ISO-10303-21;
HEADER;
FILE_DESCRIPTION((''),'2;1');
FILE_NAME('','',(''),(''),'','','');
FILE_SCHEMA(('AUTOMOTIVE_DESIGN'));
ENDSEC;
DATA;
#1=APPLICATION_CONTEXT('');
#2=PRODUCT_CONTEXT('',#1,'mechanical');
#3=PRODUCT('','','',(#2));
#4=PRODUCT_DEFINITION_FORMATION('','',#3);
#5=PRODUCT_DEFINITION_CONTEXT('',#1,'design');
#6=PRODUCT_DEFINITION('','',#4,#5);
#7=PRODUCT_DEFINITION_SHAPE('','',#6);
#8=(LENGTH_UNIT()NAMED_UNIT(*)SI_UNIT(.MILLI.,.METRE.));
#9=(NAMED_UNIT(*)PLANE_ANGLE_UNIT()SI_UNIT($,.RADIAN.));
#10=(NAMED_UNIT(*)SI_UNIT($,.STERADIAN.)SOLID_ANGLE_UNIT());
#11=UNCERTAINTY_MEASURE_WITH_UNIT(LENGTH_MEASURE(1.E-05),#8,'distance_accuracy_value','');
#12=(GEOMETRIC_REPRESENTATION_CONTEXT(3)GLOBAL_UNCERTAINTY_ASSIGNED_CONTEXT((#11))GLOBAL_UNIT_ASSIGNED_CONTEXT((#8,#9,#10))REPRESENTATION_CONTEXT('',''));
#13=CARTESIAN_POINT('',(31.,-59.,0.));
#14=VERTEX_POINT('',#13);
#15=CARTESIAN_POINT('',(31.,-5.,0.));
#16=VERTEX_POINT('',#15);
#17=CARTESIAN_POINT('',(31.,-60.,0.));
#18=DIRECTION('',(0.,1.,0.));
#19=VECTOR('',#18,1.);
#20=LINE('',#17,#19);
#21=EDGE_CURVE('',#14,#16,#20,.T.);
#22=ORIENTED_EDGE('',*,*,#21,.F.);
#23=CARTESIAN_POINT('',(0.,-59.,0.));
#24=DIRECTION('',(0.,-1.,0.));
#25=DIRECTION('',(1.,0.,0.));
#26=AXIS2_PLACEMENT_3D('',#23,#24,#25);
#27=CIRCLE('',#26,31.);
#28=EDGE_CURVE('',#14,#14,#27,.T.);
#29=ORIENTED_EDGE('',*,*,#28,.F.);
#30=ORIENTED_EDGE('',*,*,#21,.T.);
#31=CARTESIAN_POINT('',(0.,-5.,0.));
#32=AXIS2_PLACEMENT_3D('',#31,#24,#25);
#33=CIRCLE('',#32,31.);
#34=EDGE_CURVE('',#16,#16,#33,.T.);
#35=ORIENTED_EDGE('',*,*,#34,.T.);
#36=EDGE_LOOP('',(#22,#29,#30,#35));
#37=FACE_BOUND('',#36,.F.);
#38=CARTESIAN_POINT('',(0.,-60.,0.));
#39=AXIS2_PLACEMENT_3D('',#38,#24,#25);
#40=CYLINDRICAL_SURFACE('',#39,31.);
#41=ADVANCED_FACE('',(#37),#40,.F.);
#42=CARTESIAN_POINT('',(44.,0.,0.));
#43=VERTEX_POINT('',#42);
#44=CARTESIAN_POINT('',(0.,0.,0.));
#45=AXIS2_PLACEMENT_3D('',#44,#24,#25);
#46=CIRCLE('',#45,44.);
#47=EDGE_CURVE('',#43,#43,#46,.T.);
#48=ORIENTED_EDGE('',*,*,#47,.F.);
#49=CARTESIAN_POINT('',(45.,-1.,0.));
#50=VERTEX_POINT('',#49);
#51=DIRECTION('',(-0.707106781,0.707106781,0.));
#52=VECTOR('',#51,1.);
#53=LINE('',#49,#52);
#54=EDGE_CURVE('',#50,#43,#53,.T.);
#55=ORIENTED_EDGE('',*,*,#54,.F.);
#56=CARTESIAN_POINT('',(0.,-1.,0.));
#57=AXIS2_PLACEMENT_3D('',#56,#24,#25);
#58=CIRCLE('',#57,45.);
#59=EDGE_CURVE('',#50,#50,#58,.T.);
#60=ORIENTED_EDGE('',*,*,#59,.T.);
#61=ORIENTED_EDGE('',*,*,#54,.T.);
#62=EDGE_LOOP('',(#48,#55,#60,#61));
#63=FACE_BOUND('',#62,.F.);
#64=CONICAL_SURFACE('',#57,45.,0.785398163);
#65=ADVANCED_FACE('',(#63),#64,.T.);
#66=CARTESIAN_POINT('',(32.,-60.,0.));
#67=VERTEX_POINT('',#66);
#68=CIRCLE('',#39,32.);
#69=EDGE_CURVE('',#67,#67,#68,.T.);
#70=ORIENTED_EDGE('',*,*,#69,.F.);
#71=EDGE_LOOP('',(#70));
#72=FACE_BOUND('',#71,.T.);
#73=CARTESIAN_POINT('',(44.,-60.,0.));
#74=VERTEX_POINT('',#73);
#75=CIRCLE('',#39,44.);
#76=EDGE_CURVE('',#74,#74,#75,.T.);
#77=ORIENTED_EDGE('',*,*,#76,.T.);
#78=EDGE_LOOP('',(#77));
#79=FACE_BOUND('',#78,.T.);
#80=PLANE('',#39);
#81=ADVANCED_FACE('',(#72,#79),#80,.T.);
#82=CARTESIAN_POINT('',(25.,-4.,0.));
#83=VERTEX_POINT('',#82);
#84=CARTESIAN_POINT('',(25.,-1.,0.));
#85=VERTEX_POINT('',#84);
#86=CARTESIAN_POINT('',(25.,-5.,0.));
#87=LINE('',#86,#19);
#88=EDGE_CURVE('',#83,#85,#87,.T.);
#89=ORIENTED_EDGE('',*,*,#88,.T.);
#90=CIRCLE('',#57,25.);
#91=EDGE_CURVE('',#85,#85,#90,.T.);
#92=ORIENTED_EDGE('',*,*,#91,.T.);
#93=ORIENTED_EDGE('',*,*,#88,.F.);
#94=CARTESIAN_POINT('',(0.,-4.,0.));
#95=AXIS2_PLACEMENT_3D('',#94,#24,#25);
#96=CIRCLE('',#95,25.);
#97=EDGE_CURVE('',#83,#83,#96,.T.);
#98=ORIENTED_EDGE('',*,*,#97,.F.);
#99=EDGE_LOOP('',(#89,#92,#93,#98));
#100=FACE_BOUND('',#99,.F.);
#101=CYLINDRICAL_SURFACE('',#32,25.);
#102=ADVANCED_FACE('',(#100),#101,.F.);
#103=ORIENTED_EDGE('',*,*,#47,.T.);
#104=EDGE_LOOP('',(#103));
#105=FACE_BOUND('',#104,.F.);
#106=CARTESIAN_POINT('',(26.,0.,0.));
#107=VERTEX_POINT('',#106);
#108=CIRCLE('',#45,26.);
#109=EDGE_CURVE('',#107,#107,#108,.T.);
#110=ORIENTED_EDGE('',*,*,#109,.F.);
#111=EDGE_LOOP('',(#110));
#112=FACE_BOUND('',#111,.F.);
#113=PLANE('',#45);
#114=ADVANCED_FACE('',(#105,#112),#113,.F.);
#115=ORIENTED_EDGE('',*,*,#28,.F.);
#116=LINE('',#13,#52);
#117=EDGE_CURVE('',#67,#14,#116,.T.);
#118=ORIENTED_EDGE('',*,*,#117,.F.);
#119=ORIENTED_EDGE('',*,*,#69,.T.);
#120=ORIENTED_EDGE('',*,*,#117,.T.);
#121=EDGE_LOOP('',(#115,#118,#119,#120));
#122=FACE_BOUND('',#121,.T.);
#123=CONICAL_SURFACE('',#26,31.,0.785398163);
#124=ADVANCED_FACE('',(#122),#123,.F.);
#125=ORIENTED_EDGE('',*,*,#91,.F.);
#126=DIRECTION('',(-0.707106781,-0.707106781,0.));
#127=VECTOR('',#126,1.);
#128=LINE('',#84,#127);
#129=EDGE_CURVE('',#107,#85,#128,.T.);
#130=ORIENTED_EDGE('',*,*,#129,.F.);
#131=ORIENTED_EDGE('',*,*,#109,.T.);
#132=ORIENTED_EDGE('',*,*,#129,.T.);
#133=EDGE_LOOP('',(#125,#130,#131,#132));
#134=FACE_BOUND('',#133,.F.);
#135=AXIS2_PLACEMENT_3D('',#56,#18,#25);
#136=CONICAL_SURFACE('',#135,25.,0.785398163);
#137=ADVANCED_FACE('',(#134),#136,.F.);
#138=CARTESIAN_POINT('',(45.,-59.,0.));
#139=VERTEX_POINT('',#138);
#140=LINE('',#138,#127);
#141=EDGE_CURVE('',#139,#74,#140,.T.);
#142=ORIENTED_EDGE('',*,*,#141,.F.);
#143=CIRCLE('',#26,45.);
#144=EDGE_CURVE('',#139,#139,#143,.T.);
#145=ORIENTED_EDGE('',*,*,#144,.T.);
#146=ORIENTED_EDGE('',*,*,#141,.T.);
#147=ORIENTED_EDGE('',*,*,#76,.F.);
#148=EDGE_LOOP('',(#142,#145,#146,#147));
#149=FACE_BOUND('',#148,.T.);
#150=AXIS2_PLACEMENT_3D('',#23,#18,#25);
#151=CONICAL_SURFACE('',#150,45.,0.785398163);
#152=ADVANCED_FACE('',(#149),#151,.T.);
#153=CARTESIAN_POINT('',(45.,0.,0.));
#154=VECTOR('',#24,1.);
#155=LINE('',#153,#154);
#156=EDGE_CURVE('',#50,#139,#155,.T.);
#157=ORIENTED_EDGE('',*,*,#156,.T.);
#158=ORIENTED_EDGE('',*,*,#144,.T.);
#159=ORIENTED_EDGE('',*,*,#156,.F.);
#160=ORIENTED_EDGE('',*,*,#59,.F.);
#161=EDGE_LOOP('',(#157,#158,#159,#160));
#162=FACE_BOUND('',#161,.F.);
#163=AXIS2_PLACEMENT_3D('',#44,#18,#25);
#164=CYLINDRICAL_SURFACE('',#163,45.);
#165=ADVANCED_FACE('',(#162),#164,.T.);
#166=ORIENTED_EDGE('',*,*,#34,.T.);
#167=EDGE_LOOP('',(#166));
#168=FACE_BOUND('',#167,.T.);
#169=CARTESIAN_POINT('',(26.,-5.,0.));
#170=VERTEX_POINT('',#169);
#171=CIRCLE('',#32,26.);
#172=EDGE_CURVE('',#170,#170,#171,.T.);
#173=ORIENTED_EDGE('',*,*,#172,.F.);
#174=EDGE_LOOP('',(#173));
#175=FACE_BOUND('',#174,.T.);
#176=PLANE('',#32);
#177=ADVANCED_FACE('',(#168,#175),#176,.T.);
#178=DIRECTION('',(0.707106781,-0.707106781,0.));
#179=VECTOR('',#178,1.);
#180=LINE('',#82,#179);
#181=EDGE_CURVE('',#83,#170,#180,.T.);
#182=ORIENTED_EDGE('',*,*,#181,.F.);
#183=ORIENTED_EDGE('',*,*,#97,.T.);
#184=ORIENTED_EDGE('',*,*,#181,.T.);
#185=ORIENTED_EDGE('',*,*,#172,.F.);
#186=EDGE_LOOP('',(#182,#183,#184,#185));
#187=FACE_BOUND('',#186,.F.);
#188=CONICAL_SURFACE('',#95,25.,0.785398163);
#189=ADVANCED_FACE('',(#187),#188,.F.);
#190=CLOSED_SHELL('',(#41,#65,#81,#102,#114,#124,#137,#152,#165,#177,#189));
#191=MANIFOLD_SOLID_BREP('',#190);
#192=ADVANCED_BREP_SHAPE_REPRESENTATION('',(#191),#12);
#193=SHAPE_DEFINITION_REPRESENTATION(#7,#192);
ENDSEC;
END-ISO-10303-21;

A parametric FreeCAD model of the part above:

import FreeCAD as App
import Part
import Sketcher

V = App.Vector
Q = App.Units.Quantity


def edges_at(feature, points):
    """Names of the edges that pass closest to the given points."""
    edges = feature.Shape.Edges
    near = lambda p: min(range(len(edges)), key=lambda i: edges[i].distToShape(Part.Vertex(*p))[0])
    return sorted({f"Edge{near(p) + 1}" for p in points})

doc = App.newDocument("Part")
body = doc.addObject("PartDesign::Body", "Body")

sketch1 = doc.addObject("Sketcher::SketchObject", "Sketch")
body.addObject(sketch1)
sketch1.AttachmentSupport = (doc.XZ_Plane, [""])
sketch1.MapMode = "FlatFace"
sketch1.addGeometry(Part.Circle(V(0, 0, 0), V(0, 0, 1), 45), False)
sketch1.addConstraint([
    Sketcher.Constraint("Coincident", 0, 3, -1, 1),
    Sketcher.Constraint("Diameter", 0, Q("90 mm")),
])
pad1 = doc.addObject("PartDesign::Pad", "Pad")
body.addObject(pad1)
pad1.Profile = sketch1
pad1.Length = 60

sketch2 = doc.addObject("Sketcher::SketchObject", "Sketch001")
body.addObject(sketch2)
sketch2.AttachmentSupport = (doc.XZ_Plane, [""])
sketch2.MapMode = "FlatFace"
sketch2.AttachmentOffset = App.Placement(V(0, 0, 60), App.Rotation())
sketch2.addGeometry(Part.Circle(V(0, 0, 0), V(0, 0, 1), 31), False)
sketch2.addConstraint([
    Sketcher.Constraint("Coincident", 0, 3, -1, 1),
    Sketcher.Constraint("Diameter", 0, Q("62 mm")),
])
pocket1 = doc.addObject("PartDesign::Pocket", "Pocket")
body.addObject(pocket1)
pocket1.Profile = sketch2
pocket1.Length = 55

sketch3 = doc.addObject("Sketcher::SketchObject", "Sketch002")
body.addObject(sketch3)
sketch3.AttachmentSupport = (doc.XZ_Plane, [""])
sketch3.MapMode = "FlatFace"
sketch3.AttachmentOffset = App.Placement(V(0, 0, 5), App.Rotation())
sketch3.addGeometry(Part.Circle(V(0, 0, 0), V(0, 0, 1), 25), False)
sketch3.addConstraint([
    Sketcher.Constraint("Coincident", 0, 3, -1, 1),
    Sketcher.Constraint("Diameter", 0, Q("50 mm")),
])
pocket2 = doc.addObject("PartDesign::Pocket", "Pocket001")
body.addObject(pocket2)
pocket2.Profile = sketch3
pocket2.Length = 25
doc.recompute()

chamfer = doc.addObject("PartDesign::Chamfer", "Chamfer")
body.addObject(chamfer)
chamfer.Base = (pocket2, edges_at(pocket2, [
    (-45, -60, 0),
    (-31, -60, 0),
    (-45, 0, 0),
    (-25, 0, 0),
    (-25, -5, 0),
]))
chamfer.Size = 1

doc.recompute()
